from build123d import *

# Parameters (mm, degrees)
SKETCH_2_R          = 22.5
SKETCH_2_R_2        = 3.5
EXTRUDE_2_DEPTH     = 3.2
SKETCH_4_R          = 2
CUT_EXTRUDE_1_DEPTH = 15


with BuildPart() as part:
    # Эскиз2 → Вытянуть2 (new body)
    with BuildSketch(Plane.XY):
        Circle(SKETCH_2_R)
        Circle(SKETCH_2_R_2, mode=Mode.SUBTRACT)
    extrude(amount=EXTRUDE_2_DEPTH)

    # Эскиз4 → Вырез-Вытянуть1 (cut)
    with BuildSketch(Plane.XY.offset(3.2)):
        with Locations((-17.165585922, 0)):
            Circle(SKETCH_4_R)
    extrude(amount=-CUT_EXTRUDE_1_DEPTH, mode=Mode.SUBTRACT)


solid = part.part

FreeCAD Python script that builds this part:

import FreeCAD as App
import Part
import Sketcher

doc = App.newDocument("Part")
body = doc.addObject("PartDesign::Body", "Body")

sketch1 = doc.addObject("Sketcher::SketchObject", "Sketch")
body.addObject(sketch1)
sketch1.AttachmentSupport = (doc.XY_Plane, [""])
sketch1.MapMode = "FlatFace"
sketch1.addGeometry(Part.Circle(App.Vector(0, 0, 0), App.Vector(0, 0, 1), 22.5), False)
sketch1.addGeometry(Part.Circle(App.Vector(0, 0, 0), App.Vector(0, 0, 1), 3.5), False)
sketch1.addConstraint(Sketcher.Constraint("Coincident", 0, 3, -1, 1))
sketch1.addConstraint(Sketcher.Constraint("Coincident", 1, 3, -1, 1))
sketch1.addConstraint(Sketcher.Constraint("Diameter", 0, 45.0))
sketch1.addConstraint(Sketcher.Constraint("Diameter", 1, 7.0))
pad1 = doc.addObject("PartDesign::Pad", "Pad")
body.addObject(pad1)
pad1.Profile = sketch1
pad1.Length = 3.2

sketch2 = doc.addObject("Sketcher::SketchObject", "Sketch001")
body.addObject(sketch2)
sketch2.AttachmentSupport = (doc.XY_Plane, [""])
sketch2.MapMode = "FlatFace"
sketch2.AttachmentOffset = App.Placement(App.Vector(0, 0, 3.2), App.Rotation())
sketch2.addGeometry(Part.Circle(App.Vector(-17.165586, 0, 0), App.Vector(0, 0, 1), 2), False)
sketch2.addConstraint(Sketcher.Constraint("PointOnObject", 0, 3, -1))
sketch2.addConstraint(Sketcher.Constraint("Diameter", 0, 4.0))
sketch2.addConstraint(Sketcher.Constraint("DistanceX", 0, 3, -1, 1, 17.165586))
pocket1 = doc.addObject("PartDesign::Pocket", "Pocket")
body.addObject(pocket1)
pocket1.Profile = sketch2
pocket1.Length = 15

doc.recompute()
